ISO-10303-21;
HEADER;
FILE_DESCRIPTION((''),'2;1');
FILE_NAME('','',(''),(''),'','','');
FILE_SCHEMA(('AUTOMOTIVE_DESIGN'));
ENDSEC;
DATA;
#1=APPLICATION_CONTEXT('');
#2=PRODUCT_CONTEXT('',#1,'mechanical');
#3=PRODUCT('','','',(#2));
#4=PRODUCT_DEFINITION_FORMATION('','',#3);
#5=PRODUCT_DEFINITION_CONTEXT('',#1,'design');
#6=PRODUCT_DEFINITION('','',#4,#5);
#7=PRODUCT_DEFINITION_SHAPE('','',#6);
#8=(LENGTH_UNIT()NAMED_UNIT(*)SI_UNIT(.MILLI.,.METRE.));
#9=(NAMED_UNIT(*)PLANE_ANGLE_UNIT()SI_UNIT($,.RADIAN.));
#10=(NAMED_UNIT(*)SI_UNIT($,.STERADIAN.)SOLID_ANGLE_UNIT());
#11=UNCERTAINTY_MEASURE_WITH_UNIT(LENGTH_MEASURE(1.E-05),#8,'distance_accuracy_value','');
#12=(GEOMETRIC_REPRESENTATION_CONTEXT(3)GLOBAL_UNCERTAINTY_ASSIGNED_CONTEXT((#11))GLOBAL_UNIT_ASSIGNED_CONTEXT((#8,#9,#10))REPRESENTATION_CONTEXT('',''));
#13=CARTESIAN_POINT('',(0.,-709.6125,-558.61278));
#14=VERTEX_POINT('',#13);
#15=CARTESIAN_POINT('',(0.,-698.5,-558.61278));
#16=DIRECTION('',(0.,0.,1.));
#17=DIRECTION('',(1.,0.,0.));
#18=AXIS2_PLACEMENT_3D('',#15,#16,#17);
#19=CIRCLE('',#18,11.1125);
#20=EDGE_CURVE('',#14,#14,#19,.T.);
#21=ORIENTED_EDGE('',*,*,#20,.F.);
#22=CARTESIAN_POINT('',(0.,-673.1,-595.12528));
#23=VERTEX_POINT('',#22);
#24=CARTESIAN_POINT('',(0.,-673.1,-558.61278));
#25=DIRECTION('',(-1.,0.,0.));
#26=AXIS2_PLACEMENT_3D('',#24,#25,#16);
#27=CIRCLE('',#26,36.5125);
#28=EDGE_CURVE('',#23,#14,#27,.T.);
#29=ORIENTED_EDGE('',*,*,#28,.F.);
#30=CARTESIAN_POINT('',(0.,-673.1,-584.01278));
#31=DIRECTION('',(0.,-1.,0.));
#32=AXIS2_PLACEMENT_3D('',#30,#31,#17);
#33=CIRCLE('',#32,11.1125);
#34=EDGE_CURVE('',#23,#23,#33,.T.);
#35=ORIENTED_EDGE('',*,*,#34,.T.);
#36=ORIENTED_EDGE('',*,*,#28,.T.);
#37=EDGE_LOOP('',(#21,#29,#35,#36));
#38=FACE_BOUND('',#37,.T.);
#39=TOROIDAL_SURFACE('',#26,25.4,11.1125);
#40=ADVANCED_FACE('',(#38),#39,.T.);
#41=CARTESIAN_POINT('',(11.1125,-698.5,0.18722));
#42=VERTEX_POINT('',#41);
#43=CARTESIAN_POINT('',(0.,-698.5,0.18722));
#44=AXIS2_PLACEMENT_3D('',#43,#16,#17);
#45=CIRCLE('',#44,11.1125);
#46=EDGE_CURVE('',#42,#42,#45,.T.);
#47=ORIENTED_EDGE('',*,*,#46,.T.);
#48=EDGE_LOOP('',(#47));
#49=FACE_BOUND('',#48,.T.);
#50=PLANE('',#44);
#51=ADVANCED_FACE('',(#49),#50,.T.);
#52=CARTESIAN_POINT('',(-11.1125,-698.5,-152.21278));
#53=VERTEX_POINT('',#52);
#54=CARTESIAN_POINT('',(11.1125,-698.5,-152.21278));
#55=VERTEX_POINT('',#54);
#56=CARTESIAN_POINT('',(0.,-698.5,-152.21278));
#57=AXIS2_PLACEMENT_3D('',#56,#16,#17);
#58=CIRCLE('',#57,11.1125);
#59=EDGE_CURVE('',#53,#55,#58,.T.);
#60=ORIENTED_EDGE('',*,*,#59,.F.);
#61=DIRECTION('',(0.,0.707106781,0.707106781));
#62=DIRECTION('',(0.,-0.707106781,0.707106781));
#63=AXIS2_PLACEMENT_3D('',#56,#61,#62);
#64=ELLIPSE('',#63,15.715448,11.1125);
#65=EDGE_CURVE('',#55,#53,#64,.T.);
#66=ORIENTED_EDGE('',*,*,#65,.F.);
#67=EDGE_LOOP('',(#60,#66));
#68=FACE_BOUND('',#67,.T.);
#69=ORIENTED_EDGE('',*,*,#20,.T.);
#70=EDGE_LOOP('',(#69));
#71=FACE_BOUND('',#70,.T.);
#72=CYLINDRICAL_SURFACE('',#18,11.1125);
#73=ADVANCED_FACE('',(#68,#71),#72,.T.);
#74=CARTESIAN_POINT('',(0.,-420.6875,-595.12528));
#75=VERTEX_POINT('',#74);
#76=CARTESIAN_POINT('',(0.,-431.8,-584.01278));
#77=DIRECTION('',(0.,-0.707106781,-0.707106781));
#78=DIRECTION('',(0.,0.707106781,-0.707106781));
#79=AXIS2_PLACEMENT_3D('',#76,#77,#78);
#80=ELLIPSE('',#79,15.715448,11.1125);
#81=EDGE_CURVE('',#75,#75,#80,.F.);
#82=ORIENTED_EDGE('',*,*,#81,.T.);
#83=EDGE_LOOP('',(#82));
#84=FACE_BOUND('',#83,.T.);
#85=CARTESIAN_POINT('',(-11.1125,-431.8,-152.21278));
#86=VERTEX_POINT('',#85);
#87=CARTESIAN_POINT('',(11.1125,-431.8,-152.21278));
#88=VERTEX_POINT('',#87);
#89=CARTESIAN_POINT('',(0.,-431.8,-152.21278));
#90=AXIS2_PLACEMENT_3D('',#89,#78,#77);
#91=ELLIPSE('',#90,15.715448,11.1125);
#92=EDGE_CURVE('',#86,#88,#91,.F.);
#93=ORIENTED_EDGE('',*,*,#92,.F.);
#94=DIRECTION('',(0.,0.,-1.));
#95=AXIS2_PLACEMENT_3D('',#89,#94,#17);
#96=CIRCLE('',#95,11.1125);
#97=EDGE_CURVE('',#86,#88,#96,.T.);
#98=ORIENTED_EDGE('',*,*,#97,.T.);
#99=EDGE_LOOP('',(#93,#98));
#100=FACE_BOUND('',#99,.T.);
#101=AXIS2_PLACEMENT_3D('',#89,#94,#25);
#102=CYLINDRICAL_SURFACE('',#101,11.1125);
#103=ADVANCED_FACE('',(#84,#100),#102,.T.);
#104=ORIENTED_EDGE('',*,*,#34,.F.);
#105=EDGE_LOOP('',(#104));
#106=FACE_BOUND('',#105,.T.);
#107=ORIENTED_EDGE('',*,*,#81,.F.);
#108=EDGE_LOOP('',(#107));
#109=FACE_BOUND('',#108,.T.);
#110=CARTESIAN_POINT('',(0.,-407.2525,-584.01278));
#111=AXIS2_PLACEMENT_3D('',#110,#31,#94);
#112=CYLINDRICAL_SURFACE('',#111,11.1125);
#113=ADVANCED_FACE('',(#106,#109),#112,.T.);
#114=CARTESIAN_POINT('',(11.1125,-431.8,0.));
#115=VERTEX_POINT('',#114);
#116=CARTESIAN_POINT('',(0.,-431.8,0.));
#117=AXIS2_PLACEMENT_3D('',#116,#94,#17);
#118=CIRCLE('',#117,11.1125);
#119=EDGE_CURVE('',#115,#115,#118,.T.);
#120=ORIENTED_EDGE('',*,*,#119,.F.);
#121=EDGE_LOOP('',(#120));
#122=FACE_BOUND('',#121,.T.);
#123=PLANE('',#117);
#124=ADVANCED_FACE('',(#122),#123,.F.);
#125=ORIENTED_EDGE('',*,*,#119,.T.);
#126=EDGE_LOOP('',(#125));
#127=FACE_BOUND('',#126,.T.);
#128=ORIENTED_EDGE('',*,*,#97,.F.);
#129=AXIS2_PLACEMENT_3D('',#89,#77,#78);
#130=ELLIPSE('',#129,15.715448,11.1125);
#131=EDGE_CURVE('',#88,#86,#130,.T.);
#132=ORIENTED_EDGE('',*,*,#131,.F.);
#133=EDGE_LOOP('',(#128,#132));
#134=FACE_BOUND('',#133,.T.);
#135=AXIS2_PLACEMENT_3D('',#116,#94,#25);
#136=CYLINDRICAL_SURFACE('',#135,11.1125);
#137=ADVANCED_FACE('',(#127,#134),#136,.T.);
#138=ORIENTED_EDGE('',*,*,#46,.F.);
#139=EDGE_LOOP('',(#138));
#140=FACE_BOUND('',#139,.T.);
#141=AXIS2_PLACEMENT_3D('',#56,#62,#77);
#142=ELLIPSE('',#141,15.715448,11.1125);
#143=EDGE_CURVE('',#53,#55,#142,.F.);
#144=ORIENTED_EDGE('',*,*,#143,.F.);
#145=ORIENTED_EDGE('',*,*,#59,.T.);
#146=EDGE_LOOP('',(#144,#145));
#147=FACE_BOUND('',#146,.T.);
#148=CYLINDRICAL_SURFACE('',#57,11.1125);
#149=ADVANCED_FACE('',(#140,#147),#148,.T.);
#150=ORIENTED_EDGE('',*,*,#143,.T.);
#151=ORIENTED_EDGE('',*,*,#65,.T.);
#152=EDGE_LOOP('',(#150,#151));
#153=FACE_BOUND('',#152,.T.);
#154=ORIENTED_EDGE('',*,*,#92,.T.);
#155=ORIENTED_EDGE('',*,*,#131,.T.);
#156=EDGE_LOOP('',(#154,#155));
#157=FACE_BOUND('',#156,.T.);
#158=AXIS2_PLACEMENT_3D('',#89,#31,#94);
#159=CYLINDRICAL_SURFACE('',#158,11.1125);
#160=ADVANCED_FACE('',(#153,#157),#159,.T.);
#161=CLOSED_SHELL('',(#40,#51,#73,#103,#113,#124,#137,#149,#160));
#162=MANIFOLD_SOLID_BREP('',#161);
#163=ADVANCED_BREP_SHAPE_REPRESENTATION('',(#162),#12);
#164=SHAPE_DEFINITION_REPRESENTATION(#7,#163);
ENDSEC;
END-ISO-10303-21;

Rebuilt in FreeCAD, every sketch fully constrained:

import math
import FreeCAD as App
import Part
import Sketcher
Q = App.Units.Quantity

doc = App.newDocument("Part")
body = doc.addObject("PartDesign::Body", "Body")

sketch1 = body.newObject("Sketcher::SketchObject", "Sketch")
sketch1.AttachmentSupport = (doc.getObject("XY_Plane"), [""])
sketch1.MapMode = "FlatFace"
sketch1.addGeometry(Part.Circle(App.Vector(0, -698, 0), App.Vector(0, 0, 1), 11), False)
sketch1.addConstraint([
    Sketcher.Constraint("PointOnObject", 0, 3, -2),
    Sketcher.Constraint("Diameter", 0, Q("0.875 in")),
    Sketcher.Constraint("DistanceY", 0, 3, -1, 1, Q("27.5 in")),
])

sketch2 = body.newObject("Sketcher::SketchObject", "Sketch001")
sketch2.AttachmentSupport = (doc.getObject("YZ_Plane"), [""])
sketch2.MapMode = "FlatFace"
sketch2.addGeometry([
    Part.LineSegment(App.Vector(-432, 0, 0), App.Vector(-432, -584, 0)),
    Part.LineSegment(App.Vector(-432, -584, 0), App.Vector(-673, -584, 0)),
    Part.ArcOfCircle(Part.Circle(App.Vector(-673, -559, 0), App.Vector(0, 0, 1), 25), math.radians(180), math.radians(270)),
    Part.LineSegment(App.Vector(-698, -559, 0), App.Vector(-698, 0, 0)),
], False)
sketch2.addConstraint([
    Sketcher.Constraint("Coincident", 0, 2, 1, 1),
    Sketcher.Constraint("Tangent", 1, 2, 2, 2),
    Sketcher.Constraint("Tangent", 2, 1, 3, 1),
    Sketcher.Constraint("Vertical", 0),
    Sketcher.Constraint("Horizontal", 1),
    Sketcher.Constraint("Vertical", 3),
    Sketcher.Constraint("PointOnObject", 0, 1, -1),
    Sketcher.Constraint("Radius", 2, Q("1 in")),
    Sketcher.Constraint("DistanceY", 3, 1, 3, 2, Q("22 in")),
    Sketcher.Constraint("DistanceX", 1, 2, 1, 1, Q("9.5 in")),
    Sketcher.Constraint("DistanceX", 0, 1, -1, 1, Q("17 in")),
    Sketcher.Constraint("DistanceY", 0, 2, 0, 1, Q("584.01278 mm")),
])
doc.recompute()

additivepipe = body.newObject("PartDesign::AdditivePipe", "AdditivePipe")
additivepipe.Profile = sketch1
additivepipe.Spine = (sketch2, ["Edge1", "Edge2", "Edge3", "Edge4"])
additivepipe.Transition = "Right corner"

sketch3 = body.newObject("Sketcher::SketchObject", "Sketch002")
sketch3.AttachmentSupport = (doc.getObject("XY_Plane"), [""])
sketch3.MapMode = "FlatFace"
sketch3.addGeometry(Part.Circle(App.Vector(0, -698, 0), App.Vector(0, 0, 1), 11), False)
sketch3.addConstraint([
    Sketcher.Constraint("PointOnObject", 0, 3, -2),
    Sketcher.Constraint("Diameter", 0, Q("0.875 in")),
    Sketcher.Constraint("DistanceY", 0, 3, -1, 1, Q("27.5 in")),
])

sketch4 = body.newObject("Sketcher::SketchObject", "Sketch003")
sketch4.AttachmentSupport = (doc.getObject("YZ_Plane"), [""])
sketch4.MapMode = "FlatFace"
sketch4.addGeometry([
    Part.LineSegment(App.Vector(-698, 0, 0), App.Vector(-698, -152, 0)),
    Part.LineSegment(App.Vector(-698, -152, 0), App.Vector(-432, -152, 0)),
], False)
sketch4.addConstraint([
    Sketcher.Constraint("Coincident", 0, 2, 1, 1),
    Sketcher.Constraint("Vertical", 0),
    Sketcher.Constraint("Horizontal", 1),
    Sketcher.Constraint("DistanceY", 0, 2, 0, 1, Q("6 in")),
    Sketcher.Constraint("DistanceX", 1, 1, 1, 2, Q("10.5 in")),
    Sketcher.Constraint("DistanceX", 1, 2, -1, 1, Q("17 in")),
    Sketcher.Constraint("DistanceY", -1, 1, 0, 1, Q("0.18722 mm")),
])
doc.recompute()

additivepipe2 = body.newObject("PartDesign::AdditivePipe", "AdditivePipe001")
additivepipe2.Profile = sketch3
additivepipe2.Spine = (sketch4, ["Edge1", "Edge2"])
additivepipe2.Transition = "Right corner"

doc.recompute()
